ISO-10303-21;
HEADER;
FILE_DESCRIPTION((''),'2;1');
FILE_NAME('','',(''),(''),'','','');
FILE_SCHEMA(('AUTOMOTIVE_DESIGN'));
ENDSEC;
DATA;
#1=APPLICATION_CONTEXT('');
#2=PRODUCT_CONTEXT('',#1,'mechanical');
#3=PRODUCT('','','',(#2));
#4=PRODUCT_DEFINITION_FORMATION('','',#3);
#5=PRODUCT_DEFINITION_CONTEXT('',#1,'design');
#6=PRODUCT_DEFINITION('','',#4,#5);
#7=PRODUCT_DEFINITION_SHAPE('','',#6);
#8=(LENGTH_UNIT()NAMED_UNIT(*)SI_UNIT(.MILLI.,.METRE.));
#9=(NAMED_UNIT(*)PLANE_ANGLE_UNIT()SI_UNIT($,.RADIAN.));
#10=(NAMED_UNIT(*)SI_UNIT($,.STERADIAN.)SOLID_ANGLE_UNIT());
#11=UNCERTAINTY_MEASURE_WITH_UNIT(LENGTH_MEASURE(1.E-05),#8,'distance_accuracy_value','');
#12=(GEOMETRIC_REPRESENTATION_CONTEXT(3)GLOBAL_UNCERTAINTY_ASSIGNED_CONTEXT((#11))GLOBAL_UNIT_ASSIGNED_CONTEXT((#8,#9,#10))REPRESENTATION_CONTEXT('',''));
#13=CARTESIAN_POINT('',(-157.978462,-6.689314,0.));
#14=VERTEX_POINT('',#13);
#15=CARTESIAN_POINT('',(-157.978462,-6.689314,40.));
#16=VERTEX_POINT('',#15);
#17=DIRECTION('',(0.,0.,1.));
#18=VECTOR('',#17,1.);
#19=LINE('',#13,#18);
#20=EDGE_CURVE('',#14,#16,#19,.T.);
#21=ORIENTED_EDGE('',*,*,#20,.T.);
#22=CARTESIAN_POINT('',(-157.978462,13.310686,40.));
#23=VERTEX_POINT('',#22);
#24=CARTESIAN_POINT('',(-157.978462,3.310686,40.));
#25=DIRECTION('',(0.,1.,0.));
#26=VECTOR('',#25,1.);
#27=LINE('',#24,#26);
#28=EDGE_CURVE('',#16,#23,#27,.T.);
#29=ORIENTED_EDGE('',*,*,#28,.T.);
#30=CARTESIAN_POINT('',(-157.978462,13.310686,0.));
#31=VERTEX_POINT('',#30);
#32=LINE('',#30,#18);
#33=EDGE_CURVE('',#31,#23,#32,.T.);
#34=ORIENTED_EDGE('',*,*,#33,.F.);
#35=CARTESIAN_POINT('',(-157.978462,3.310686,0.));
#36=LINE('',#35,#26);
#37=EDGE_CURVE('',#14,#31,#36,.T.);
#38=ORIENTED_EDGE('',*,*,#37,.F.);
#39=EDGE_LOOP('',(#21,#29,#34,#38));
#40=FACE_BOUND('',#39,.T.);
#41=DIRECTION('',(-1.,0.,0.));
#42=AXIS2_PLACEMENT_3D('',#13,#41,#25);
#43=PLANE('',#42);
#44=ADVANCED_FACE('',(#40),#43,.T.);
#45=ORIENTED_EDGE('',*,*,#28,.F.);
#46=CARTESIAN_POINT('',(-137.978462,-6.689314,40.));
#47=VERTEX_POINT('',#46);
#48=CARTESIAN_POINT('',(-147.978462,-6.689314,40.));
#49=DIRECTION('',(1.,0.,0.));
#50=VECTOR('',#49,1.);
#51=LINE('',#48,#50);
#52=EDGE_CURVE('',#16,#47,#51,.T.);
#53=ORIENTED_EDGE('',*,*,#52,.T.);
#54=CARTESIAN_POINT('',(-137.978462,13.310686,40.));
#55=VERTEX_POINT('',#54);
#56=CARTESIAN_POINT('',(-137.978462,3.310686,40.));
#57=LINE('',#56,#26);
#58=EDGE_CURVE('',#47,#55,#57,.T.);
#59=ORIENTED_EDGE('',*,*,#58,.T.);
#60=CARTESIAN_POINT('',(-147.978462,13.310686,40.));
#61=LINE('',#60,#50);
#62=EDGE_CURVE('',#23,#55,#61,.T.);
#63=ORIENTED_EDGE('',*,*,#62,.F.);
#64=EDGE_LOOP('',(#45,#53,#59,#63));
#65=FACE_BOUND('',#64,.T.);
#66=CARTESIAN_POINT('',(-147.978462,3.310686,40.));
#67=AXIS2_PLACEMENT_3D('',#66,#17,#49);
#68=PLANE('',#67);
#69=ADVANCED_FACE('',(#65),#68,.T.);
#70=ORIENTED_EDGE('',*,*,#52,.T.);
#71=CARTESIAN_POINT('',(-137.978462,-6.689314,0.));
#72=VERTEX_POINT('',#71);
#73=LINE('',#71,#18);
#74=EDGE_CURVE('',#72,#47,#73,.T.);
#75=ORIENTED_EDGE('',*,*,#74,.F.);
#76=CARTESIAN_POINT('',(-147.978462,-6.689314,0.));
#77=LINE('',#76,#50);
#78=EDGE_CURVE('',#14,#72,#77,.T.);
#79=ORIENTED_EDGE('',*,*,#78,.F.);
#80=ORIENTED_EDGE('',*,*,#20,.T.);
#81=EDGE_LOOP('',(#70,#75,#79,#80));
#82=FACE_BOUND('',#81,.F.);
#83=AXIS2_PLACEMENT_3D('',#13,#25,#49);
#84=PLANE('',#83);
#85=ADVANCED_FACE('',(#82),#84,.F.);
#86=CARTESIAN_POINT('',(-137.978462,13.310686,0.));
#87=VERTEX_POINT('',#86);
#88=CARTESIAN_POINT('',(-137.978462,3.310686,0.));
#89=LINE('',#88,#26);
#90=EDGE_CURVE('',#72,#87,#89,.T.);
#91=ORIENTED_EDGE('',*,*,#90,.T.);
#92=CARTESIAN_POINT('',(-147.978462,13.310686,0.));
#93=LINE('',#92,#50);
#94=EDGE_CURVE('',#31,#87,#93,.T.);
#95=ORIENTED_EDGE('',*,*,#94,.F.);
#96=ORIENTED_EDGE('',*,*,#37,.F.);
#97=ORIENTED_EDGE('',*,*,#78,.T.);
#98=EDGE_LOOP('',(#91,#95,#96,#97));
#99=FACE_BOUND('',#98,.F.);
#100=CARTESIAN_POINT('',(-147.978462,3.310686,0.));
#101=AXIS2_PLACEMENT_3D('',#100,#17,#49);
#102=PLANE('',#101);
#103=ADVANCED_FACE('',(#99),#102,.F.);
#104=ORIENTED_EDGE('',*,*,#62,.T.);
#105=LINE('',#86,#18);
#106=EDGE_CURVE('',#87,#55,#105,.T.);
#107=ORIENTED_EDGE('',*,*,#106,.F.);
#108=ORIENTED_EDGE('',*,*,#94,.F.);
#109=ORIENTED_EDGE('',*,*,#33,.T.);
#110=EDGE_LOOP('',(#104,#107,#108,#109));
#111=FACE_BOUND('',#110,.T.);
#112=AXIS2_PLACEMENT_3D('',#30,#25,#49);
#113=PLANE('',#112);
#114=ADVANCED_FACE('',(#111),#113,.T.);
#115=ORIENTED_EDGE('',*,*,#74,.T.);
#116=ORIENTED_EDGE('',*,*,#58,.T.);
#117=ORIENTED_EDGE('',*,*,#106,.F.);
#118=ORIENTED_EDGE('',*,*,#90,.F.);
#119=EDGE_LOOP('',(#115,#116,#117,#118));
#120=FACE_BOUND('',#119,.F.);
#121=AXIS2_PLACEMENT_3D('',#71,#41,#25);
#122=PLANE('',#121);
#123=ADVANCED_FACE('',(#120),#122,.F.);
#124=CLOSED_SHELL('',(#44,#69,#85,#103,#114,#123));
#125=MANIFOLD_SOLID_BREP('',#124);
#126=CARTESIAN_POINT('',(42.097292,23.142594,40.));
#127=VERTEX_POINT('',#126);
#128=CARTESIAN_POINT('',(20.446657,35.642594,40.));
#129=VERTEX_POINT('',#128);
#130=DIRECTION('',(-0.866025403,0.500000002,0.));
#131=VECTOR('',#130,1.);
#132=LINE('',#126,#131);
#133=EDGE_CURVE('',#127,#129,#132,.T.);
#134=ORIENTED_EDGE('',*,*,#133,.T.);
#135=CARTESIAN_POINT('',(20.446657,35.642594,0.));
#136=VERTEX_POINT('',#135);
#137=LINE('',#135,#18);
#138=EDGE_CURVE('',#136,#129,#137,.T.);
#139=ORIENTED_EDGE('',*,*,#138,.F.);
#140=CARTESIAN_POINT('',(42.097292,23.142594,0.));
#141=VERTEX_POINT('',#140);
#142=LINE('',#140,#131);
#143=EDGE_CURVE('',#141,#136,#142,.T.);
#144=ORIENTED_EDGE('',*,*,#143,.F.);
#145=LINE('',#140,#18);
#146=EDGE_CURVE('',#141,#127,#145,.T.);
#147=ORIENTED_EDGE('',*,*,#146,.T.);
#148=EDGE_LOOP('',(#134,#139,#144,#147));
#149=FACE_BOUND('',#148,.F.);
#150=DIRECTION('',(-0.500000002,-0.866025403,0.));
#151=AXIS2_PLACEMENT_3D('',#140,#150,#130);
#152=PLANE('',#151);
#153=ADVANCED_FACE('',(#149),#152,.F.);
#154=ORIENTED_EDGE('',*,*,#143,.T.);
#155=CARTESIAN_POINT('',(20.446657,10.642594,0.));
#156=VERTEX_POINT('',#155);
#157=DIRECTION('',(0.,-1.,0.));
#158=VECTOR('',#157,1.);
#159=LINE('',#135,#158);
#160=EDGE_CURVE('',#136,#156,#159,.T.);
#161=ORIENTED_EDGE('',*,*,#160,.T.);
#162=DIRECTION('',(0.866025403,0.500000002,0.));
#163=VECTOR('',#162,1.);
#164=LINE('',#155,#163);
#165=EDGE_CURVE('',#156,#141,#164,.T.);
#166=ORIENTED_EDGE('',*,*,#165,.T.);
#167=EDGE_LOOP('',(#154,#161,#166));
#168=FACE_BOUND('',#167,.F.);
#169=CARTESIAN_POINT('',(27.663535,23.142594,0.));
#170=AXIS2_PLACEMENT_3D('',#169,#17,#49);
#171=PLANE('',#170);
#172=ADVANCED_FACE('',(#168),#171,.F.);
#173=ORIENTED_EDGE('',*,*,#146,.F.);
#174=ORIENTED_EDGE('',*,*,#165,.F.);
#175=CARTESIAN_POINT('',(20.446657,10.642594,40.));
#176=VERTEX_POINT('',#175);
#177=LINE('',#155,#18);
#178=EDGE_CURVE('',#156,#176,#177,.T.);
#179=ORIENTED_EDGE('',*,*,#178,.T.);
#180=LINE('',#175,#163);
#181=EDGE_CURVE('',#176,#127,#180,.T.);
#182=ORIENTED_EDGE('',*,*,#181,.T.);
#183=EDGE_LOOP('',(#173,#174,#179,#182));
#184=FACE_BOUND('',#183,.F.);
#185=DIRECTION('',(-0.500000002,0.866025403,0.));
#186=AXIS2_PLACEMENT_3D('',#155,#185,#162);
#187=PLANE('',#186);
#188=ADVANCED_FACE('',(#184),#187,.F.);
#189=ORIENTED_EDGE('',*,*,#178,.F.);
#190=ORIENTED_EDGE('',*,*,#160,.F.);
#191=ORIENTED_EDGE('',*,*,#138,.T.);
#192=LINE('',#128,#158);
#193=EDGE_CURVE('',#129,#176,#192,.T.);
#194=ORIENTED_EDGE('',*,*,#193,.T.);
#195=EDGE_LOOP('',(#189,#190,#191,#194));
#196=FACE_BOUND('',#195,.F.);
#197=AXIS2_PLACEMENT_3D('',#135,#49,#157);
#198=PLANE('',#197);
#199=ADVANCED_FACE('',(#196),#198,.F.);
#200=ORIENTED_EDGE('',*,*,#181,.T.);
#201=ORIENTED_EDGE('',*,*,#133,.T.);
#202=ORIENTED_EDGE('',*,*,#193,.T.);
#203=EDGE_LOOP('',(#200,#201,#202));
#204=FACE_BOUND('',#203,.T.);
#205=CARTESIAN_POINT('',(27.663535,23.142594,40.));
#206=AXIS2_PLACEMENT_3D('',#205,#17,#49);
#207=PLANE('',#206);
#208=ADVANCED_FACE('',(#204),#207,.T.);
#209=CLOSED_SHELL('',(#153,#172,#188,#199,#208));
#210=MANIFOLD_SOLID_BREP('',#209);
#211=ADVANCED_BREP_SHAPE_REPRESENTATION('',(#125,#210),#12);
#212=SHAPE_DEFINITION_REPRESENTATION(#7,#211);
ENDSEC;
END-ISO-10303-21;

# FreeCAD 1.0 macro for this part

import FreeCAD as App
import Part
import Sketcher

V = App.Vector
Q = App.Units.Quantity


def add_polygon(sketch, points):
    """Adds a closed chain of lines whose ends are joined by coincident constraints."""
    first, n = sketch.GeometryCount, len(points)
    for a, b in zip(points, points[1:] + points[:1]):
        sketch.addGeometry(Part.LineSegment(App.Vector(*a, 0), App.Vector(*b, 0)), False)
    for i in range(n):
        sketch.addConstraint(Sketcher.Constraint("Coincident", first + i, 2, first + (i + 1) % n, 1))

doc = App.newDocument("Part")
params = doc.addObject("Spreadsheet::Sheet", "Params")
for row, (alias, value) in enumerate([
    ("sketch1_width", "20 mm"),
    ("pad1_length", "40 mm"),
    ("sketch2_height", "25 mm"),
    ("pad2_length", "40 mm"),
], start=1):
    params.set(f"A{row}", alias)
    params.set(f"B{row}", "=" + value)
    params.setAlias(f"B{row}", alias)

body = doc.addObject("PartDesign::Body", "Body")

sketch1 = doc.addObject("Sketcher::SketchObject", "Sketch")
body.addObject(sketch1)
sketch1.AttachmentSupport = (doc.XY_Plane, [""])
sketch1.MapMode = "FlatFace"
add_polygon(sketch1, [(-157.978462, 13.310686), (-157.978462, -6.689314), (-137.978462, -6.689314), (-137.978462, 13.310686)])
sketch1.addConstraint([
    Sketcher.Constraint("Vertical", 0),
    Sketcher.Constraint("Horizontal", 1),
    Sketcher.Constraint("Vertical", 2),
    Sketcher.Constraint("Horizontal", 3),
    Sketcher.Constraint("Equal", 3, 0),
    Sketcher.Constraint("DistanceX", 1, 1, 1, 2, Q("20 mm")),
    Sketcher.Constraint("DistanceX", 0, 2, -1, 1, Q("157.978462 mm")),
    Sketcher.Constraint("DistanceY", 0, 2, -1, 1, Q("6.689314 mm")),
])
sketch1.setExpression("Constraints[9]", "Params.sketch1_width")
pad1 = doc.addObject("PartDesign::Pad", "Pad")
body.addObject(pad1)
pad1.Profile = sketch1
pad1.setExpression("Length", "Params.pad1_length")
body2 = doc.addObject("PartDesign::Body", "Body001")

sketch2 = doc.addObject("Sketcher::SketchObject", "Sketch001")
body2.addObject(sketch2)
sketch2.AttachmentSupport = (doc.getObject("XY_Plane001"), [""])
sketch2.MapMode = "FlatFace"
add_polygon(sketch2, [(20.446657, 10.642594), (42.097292, 23.142594), (20.446657, 35.642594)])
sketch2.addConstraint([
    Sketcher.Constraint("Vertical", 2),
    Sketcher.Constraint("Equal", 0, 1),
    Sketcher.Constraint("DistanceY", 2, 2, 2, 1, Q("25 mm")),
    Sketcher.Constraint("Angle", 0, Q("30 deg")),
    Sketcher.Constraint("DistanceX", -1, 1, 0, 2, Q("42.097292 mm")),
    Sketcher.Constraint("DistanceY", -1, 1, 0, 2, Q("23.142594 mm")),
])
sketch2.setExpression("Constraints[5]", "Params.sketch2_height")
pad2 = doc.addObject("PartDesign::Pad", "Pad001")
body2.addObject(pad2)
pad2.Profile = sketch2
pad2.setExpression("Length", "Params.pad2_length")

doc.recompute()
